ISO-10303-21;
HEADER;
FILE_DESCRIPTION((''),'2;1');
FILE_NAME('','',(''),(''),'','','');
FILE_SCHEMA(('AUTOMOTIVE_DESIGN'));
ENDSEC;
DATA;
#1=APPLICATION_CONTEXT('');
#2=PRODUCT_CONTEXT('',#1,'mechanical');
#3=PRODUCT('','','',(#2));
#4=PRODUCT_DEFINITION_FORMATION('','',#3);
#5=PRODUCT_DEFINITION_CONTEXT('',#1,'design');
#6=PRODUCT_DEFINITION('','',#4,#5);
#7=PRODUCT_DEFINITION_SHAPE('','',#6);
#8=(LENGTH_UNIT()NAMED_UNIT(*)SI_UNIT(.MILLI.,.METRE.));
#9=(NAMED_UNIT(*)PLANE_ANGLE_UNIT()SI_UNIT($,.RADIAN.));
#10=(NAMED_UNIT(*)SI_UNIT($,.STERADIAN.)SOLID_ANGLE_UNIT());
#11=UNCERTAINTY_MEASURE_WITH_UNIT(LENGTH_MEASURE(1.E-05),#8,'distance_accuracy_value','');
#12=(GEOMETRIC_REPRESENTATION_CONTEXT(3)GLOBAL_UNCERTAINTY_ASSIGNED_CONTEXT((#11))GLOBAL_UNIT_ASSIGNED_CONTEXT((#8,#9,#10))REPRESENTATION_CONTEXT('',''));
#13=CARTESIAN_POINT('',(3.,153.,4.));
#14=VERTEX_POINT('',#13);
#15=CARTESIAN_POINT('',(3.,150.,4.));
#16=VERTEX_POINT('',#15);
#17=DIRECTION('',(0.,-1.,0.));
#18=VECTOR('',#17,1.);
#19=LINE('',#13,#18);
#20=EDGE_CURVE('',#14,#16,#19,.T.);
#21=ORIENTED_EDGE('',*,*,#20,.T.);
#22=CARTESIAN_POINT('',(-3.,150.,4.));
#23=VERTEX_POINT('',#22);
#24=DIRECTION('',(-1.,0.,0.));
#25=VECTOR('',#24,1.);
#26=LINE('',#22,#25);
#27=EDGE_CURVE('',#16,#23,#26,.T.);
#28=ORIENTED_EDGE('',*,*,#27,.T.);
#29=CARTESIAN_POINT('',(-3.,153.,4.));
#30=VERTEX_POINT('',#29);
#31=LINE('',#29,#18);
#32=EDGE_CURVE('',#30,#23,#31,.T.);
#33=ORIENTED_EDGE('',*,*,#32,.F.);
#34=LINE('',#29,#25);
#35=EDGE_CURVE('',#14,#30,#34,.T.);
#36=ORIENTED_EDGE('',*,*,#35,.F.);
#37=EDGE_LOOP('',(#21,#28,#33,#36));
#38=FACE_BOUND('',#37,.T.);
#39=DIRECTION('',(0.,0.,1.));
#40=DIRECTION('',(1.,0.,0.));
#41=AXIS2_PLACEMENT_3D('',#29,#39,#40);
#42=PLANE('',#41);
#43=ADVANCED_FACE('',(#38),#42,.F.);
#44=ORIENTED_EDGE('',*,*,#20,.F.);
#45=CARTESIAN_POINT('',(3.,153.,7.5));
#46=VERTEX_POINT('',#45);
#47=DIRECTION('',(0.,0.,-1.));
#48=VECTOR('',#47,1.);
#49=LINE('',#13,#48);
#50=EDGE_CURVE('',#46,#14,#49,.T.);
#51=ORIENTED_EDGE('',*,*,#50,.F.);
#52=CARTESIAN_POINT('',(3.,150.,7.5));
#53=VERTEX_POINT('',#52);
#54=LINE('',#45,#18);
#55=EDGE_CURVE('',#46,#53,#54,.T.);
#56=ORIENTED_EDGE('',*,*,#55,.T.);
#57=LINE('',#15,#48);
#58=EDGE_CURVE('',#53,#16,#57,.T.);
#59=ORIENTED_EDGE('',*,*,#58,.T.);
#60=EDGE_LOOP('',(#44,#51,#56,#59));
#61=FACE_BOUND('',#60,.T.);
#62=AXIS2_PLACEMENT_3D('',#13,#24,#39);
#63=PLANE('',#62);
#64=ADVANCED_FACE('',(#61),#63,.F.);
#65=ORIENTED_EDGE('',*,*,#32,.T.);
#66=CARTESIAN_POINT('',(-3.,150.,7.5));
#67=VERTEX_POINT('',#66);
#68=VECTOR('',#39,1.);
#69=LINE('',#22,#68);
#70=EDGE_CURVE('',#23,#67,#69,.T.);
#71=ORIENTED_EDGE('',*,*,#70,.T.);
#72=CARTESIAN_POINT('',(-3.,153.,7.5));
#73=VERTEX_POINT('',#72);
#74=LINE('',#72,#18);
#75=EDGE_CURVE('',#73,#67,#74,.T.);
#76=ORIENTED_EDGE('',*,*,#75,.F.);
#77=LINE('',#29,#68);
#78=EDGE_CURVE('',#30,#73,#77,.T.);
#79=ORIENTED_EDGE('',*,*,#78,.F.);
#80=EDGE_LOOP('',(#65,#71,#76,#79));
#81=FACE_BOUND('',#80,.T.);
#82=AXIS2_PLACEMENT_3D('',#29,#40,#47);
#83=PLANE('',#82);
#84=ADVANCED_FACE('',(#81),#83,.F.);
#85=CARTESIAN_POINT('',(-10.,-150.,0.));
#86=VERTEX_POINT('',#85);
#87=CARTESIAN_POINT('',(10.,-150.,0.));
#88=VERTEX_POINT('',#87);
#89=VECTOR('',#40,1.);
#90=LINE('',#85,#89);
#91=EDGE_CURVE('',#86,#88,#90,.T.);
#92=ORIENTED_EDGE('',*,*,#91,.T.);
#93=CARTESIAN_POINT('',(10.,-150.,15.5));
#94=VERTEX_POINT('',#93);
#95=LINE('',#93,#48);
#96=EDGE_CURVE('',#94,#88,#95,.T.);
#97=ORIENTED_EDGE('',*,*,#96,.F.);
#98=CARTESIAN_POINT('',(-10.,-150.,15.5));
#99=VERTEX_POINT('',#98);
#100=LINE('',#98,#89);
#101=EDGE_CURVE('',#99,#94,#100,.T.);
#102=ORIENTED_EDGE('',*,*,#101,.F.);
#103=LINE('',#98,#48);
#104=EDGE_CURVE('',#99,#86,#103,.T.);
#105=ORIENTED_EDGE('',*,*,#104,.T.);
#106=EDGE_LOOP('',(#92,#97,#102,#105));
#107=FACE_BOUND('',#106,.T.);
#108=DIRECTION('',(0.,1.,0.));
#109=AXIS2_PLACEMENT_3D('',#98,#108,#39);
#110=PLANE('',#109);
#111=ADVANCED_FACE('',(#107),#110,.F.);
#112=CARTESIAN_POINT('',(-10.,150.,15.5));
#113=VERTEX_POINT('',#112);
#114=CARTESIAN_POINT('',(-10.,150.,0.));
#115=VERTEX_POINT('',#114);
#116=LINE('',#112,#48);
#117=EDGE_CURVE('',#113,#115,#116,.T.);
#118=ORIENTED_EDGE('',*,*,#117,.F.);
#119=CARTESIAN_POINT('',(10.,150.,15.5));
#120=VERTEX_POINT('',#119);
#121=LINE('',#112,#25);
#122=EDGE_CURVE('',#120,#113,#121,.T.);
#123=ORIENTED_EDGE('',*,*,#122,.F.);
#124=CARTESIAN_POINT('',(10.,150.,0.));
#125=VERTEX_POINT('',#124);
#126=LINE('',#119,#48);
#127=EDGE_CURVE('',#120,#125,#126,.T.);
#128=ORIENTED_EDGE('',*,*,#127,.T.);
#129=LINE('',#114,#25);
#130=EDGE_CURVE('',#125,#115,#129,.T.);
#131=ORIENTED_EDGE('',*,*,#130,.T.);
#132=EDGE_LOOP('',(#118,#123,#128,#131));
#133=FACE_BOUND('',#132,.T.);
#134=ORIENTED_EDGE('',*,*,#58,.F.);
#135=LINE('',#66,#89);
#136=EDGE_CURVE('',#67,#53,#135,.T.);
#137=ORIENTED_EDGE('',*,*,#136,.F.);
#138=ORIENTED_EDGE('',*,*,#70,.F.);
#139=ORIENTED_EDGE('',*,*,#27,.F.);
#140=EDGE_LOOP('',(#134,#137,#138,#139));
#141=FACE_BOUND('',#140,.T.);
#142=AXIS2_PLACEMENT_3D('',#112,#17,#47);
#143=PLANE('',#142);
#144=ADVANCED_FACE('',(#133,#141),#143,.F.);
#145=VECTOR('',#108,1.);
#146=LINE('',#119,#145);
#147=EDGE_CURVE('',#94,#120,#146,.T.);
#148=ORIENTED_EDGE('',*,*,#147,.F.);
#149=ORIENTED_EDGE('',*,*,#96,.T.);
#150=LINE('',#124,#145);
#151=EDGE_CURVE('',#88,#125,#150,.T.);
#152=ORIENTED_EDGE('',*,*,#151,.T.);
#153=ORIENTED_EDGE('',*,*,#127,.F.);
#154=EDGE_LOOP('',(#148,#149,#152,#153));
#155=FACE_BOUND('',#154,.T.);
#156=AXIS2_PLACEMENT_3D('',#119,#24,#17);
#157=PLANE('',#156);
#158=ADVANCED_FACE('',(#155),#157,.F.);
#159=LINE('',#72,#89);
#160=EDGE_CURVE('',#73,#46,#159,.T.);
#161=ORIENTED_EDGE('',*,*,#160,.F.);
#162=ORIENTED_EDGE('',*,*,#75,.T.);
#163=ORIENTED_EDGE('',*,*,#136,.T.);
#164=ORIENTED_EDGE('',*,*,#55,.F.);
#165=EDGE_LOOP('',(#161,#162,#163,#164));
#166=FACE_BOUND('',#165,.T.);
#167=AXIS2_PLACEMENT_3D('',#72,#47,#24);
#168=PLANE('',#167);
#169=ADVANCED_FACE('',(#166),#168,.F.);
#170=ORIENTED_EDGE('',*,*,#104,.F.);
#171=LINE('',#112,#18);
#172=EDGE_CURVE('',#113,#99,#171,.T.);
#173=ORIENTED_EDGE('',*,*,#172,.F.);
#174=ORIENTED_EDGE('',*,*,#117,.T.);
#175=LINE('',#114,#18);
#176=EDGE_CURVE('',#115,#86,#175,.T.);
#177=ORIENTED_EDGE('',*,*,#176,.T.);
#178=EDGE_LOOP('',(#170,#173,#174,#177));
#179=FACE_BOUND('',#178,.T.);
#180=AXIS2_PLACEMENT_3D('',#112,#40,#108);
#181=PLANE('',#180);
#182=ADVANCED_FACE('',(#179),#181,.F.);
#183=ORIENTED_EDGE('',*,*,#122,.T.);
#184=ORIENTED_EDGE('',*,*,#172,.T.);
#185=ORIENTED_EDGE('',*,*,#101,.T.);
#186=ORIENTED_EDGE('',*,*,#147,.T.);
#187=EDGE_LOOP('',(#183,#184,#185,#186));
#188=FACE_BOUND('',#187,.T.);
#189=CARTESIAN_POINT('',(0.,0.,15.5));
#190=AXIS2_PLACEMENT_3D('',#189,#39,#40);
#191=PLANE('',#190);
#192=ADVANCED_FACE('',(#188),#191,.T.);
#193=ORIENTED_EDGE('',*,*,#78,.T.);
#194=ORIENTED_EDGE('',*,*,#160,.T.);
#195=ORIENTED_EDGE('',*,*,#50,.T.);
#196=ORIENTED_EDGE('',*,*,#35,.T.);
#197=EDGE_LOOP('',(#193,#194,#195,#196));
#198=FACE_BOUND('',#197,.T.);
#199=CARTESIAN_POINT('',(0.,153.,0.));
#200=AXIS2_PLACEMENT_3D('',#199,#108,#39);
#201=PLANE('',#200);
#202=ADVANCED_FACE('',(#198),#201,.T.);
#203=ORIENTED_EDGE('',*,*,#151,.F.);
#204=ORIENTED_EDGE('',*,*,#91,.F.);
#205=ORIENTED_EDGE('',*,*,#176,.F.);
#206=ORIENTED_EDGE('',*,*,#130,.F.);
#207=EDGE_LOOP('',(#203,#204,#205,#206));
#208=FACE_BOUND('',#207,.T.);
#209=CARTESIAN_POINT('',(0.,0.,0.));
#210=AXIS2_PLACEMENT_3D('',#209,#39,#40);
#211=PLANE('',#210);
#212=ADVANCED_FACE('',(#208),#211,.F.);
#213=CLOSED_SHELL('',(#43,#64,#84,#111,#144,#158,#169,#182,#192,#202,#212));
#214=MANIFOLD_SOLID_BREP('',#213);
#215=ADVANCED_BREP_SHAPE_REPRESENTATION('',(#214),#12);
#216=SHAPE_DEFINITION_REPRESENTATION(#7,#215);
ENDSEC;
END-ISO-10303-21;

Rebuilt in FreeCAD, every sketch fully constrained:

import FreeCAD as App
import Part
import Sketcher

doc = App.newDocument("Part")
body = doc.addObject("PartDesign::Body", "Body")

sketch1 = body.newObject("Sketcher::SketchObject", "Sketch")
sketch1.AttachmentSupport = (doc.getObject("XY_Plane"), [""])
sketch1.MapMode = "FlatFace"
sketch1.addGeometry([
    Part.LineSegment(App.Vector(-10, 150, 0), App.Vector(-10, -150, 0)),
    Part.LineSegment(App.Vector(-10, -150, 0), App.Vector(10, -150, 0)),
    Part.LineSegment(App.Vector(10, -150, 0), App.Vector(10, 150, 0)),
    Part.LineSegment(App.Vector(10, 150, 0), App.Vector(-10, 150, 0)),
], False)
sketch1.addConstraint([
    Sketcher.Constraint("Coincident", 0, 2, 1, 1),
    Sketcher.Constraint("Coincident", 1, 2, 2, 1),
    Sketcher.Constraint("Coincident", 2, 2, 3, 1),
    Sketcher.Constraint("Coincident", 3, 2, 0, 1),
    Sketcher.Constraint("Vertical", 0),
    Sketcher.Constraint("Horizontal", 1),
    Sketcher.Constraint("Vertical", 2),
    Sketcher.Constraint("Horizontal", 3),
    Sketcher.Constraint("Symmetric", 0, 2, 2, 2, -1, 1),
    Sketcher.Constraint("DistanceX", 1, 1, 1, 2, 20.0),
    Sketcher.Constraint("DistanceY", 0, 2, 0, 1, 300.0),
])
pad1 = body.newObject("PartDesign::Pad", "Pad")
pad1.Profile = sketch1
pad1.Length = 15.5

sketch2 = body.newObject("Sketcher::SketchObject", "Sketch001")
sketch2.AttachmentSupport = (doc.getObject("XZ_Plane"), [""])
sketch2.MapMode = "FlatFace"
sketch2.AttachmentOffset = App.Placement(App.Vector(0, 0, -150), App.Rotation())
sketch2.addGeometry([
    Part.LineSegment(App.Vector(-3, 4, 0), App.Vector(-3, 7.5, 0)),
    Part.LineSegment(App.Vector(-3, 7.5, 0), App.Vector(3, 7.5, 0)),
    Part.LineSegment(App.Vector(3, 7.5, 0), App.Vector(3, 4, 0)),
    Part.LineSegment(App.Vector(3, 4, 0), App.Vector(-3, 4, 0)),
], False)
sketch2.addConstraint([
    Sketcher.Constraint("Coincident", 0, 2, 1, 1),
    Sketcher.Constraint("Coincident", 1, 2, 2, 1),
    Sketcher.Constraint("Coincident", 2, 2, 3, 1),
    Sketcher.Constraint("Coincident", 3, 2, 0, 1),
    Sketcher.Constraint("Vertical", 0),
    Sketcher.Constraint("Horizontal", 1),
    Sketcher.Constraint("Vertical", 2),
    Sketcher.Constraint("Horizontal", 3),
    Sketcher.Constraint("DistanceX", 1, 1, 1, 2, 6.0),
    Sketcher.Constraint("DistanceY", 0, 1, 0, 2, 3.5),
    Sketcher.Constraint("DistanceX", 0, 2, -1, 1, 3.0),
    Sketcher.Constraint("DistanceY", -1, 1, 2, 2, 4.0),
])
pad2 = body.newObject("PartDesign::Pad", "Pad001")
pad2.Profile = sketch2
pad2.Length = 3
pad2.Reversed = True

doc.recompute()
